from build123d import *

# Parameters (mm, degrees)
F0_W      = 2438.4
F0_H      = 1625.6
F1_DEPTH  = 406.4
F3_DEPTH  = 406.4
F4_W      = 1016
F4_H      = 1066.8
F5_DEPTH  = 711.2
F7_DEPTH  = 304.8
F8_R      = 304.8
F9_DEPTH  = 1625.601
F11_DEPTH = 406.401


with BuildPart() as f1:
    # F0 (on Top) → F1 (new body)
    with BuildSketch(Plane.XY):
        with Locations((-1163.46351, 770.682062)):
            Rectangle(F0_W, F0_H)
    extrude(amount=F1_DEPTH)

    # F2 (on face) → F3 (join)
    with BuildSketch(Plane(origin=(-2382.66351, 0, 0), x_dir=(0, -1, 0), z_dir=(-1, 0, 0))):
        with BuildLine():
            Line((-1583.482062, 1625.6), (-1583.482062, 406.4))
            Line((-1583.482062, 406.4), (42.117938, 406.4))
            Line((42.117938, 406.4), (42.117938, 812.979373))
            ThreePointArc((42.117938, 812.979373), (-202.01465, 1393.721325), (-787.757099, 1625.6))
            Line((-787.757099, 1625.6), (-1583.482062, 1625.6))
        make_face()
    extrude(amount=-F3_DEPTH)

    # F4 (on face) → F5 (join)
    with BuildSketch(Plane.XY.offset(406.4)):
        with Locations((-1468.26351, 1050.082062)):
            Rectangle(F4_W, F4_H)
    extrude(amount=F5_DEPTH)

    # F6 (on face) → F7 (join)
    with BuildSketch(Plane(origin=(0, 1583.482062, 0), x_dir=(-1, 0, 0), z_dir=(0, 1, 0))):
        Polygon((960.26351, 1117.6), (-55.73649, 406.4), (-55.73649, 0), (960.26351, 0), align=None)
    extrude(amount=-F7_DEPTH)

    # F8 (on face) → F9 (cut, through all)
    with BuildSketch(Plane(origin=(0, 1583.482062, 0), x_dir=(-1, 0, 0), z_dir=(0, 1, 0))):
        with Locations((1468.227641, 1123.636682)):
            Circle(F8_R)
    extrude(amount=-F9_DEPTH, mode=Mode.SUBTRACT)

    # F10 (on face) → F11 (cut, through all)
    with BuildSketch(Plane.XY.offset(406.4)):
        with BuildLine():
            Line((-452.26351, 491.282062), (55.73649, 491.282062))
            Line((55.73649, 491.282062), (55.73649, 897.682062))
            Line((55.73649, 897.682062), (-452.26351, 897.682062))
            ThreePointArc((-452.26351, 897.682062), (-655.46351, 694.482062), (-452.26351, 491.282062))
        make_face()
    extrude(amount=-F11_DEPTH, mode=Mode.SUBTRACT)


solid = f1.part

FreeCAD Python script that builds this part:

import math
import FreeCAD as App
import Part
import Sketcher
Q = App.Units.Quantity


def add_polygon(sketch, points):
    """Adds a closed chain of lines whose ends are joined by coincident constraints."""
    first, n = sketch.GeometryCount, len(points)
    for a, b in zip(points, points[1:] + points[:1]):
        sketch.addGeometry(Part.LineSegment(App.Vector(*a, 0), App.Vector(*b, 0)), False)
    for i in range(n):
        sketch.addConstraint(Sketcher.Constraint("Coincident", first + i, 2, first + (i + 1) % n, 1))

doc = App.newDocument("Part")
body = doc.addObject("PartDesign::Body", "Body")

# Sketch on XY plane
sketch1 = doc.addObject("Sketcher::SketchObject", "Sketch")
body.addObject(sketch1)
sketch1.AttachmentSupport = (doc.XY_Plane, [""])
sketch1.MapMode = "FlatFace"
add_polygon(sketch1, [(-2382.66351, 1583.482062), (-2382.66351, -42.117938), (55.73649, -42.117938), (55.73649, 1583.482062)])  # lines 0-3
sketch1.addConstraint(Sketcher.Constraint("Vertical", 0))
sketch1.addConstraint(Sketcher.Constraint("Horizontal", 1))
sketch1.addConstraint(Sketcher.Constraint("Vertical", 2))
sketch1.addConstraint(Sketcher.Constraint("Horizontal", 3))
sketch1.addConstraint(Sketcher.Constraint("DistanceX", 1, 1, 1, 2, Q("96 in")))
sketch1.addConstraint(Sketcher.Constraint("DistanceY", 0, 2, 0, 1, Q("64 in")))
sketch1.addConstraint(Sketcher.Constraint("DistanceX", 0, 2, -1, 1, 2382.66351))
sketch1.addConstraint(Sketcher.Constraint("DistanceY", 0, 2, -1, 1, 42.117938))
pad1 = doc.addObject("PartDesign::Pad", "Pad")
body.addObject(pad1)
pad1.Profile = sketch1
pad1.Length = Q("16 in")

# Sketch on YZ plane
sketch2 = doc.addObject("Sketcher::SketchObject", "Sketch001")
body.addObject(sketch2)
sketch2.AttachmentSupport = (doc.YZ_Plane, [""])
sketch2.MapMode = "FlatFace"
sketch2.AttachmentOffset = App.Placement(App.Vector(0, 0, -2382.66351), App.Rotation())
sketch2.addGeometry(Part.LineSegment(App.Vector(1583.482062, 1625.6, 0), App.Vector(1583.482062, 406.4, 0)), False)
sketch2.addGeometry(Part.LineSegment(App.Vector(1583.482062, 406.4, 0), App.Vector(-42.117938, 406.4, 0)), False)
sketch2.addGeometry(Part.LineSegment(App.Vector(-42.117938, 406.4, 0), App.Vector(-42.117938, 812.979373, 0)), False)
sketch2.addGeometry(Part.ArcOfCircle(Part.Circle(App.Vector(770.682062, 812.979373, 0), App.Vector(0, 0, 1), 812.8), math.radians(88.79626), math.radians(180)), False)
sketch2.addGeometry(Part.LineSegment(App.Vector(787.757099, 1625.6, 0), App.Vector(1583.482062, 1625.6, 0)), False)
sketch2.addConstraint(Sketcher.Constraint("Coincident", 0, 2, 1, 1))
sketch2.addConstraint(Sketcher.Constraint("Coincident", 1, 2, 2, 1))
sketch2.addConstraint(Sketcher.Constraint("Tangent", 2, 2, 3, 2))
sketch2.addConstraint(Sketcher.Constraint("Coincident", 3, 1, 4, 1))
sketch2.addConstraint(Sketcher.Constraint("Coincident", 4, 2, 0, 1))
sketch2.addConstraint(Sketcher.Constraint("Vertical", 0))
sketch2.addConstraint(Sketcher.Constraint("Horizontal", 1))
sketch2.addConstraint(Sketcher.Constraint("Vertical", 2))
sketch2.addConstraint(Sketcher.Constraint("Horizontal", 4))
sketch2.addConstraint(Sketcher.Constraint("Radius", 3, Q("32 in")))
sketch2.addConstraint(Sketcher.Constraint("DistanceX", 1, 2, 1, 1, Q("64 in")))
sketch2.addConstraint(Sketcher.Constraint("DistanceY", 0, 2, 0, 1, Q("48 in")))
sketch2.addConstraint(Sketcher.Constraint("DistanceY", -1, 1, 0, 2, Q("16 in")))
sketch2.addConstraint(Sketcher.Constraint("DistanceX", 4, 1, 4, 2, 795.724963))
sketch2.addConstraint(Sketcher.Constraint("DistanceX", -1, 1, 3, 3, 770.682062))
pad2 = doc.addObject("PartDesign::Pad", "Pad001")
body.addObject(pad2)
pad2.Profile = sketch2
pad2.Length = Q("16 in")

# Sketch on XY plane
sketch3 = doc.addObject("Sketcher::SketchObject", "Sketch002")
body.addObject(sketch3)
sketch3.AttachmentSupport = (doc.XY_Plane, [""])
sketch3.MapMode = "FlatFace"
sketch3.AttachmentOffset = App.Placement(App.Vector(0, 0, 16 * 25.4), App.Rotation())
add_polygon(sketch3, [(-1976.26351, 1583.482062), (-1976.26351, 516.682062), (-960.26351, 516.682062), (-960.26351, 1583.482062)])  # lines 0-3
sketch3.addConstraint(Sketcher.Constraint("Vertical", 0))
sketch3.addConstraint(Sketcher.Constraint("Horizontal", 1))
sketch3.addConstraint(Sketcher.Constraint("Vertical", 2))
sketch3.addConstraint(Sketcher.Constraint("Horizontal", 3))
sketch3.addConstraint(Sketcher.Constraint("DistanceX", 1, 1, 1, 2, Q("40 in")))
sketch3.addConstraint(Sketcher.Constraint("DistanceY", 0, 2, 0, 1, Q("42 in")))
sketch3.addConstraint(Sketcher.Constraint("DistanceX", 0, 2, -1, 1, 1976.26351))
sketch3.addConstraint(Sketcher.Constraint("DistanceY", -1, 1, 0, 2, 516.682062))
pad3 = doc.addObject("PartDesign::Pad", "Pad002")
body.addObject(pad3)
pad3.Profile = sketch3
pad3.Length = Q("28 in")

# Sketch on XZ plane
sketch4 = doc.addObject("Sketcher::SketchObject", "Sketch003")
body.addObject(sketch4)
sketch4.AttachmentSupport = (doc.XZ_Plane, [""])
sketch4.MapMode = "FlatFace"
sketch4.AttachmentOffset = App.Placement(App.Vector(0, 0, -1583.482062), App.Rotation())
add_polygon(sketch4, [(-960.26351, 1117.6), (55.73649, 406.4), (55.73649, 0), (-960.26351, 0)])  # lines 0-3
sketch4.addConstraint(Sketcher.Constraint("Vertical", 1))
sketch4.addConstraint(Sketcher.Constraint("Horizontal", 2))
sketch4.addConstraint(Sketcher.Constraint("Vertical", 3))
sketch4.addConstraint(Sketcher.Constraint("PointOnObject", 1, 2, -1))
sketch4.addConstraint(Sketcher.Constraint("DistanceX", 2, 2, 2, 1, Q("40 in")))
sketch4.addConstraint(Sketcher.Constraint("DistanceY", 1, 2, 1, 1, Q("16 in")))
sketch4.addConstraint(Sketcher.Constraint("DistanceY", 3, 1, 3, 2, Q("44 in")))
sketch4.addConstraint(Sketcher.Constraint("DistanceX", -1, 1, 0, 2, 55.73649))
pad4 = doc.addObject("PartDesign::Pad", "Pad003")
body.addObject(pad4)
pad4.Profile = sketch4
pad4.Length = Q("12 in")

# Sketch on XZ plane
sketch5 = doc.addObject("Sketcher::SketchObject", "Sketch004")
body.addObject(sketch5)
sketch5.AttachmentSupport = (doc.XZ_Plane, [""])
sketch5.MapMode = "FlatFace"
sketch5.AttachmentOffset = App.Placement(App.Vector(0, 0, -1583.482062), App.Rotation())
sketch5.addGeometry(Part.Circle(App.Vector(-1468.227641, 1123.636682, 0), App.Vector(0, 0, 1), 304.8), False)
sketch5.addConstraint(Sketcher.Constraint("Diameter", 0, Q("24 in")))
sketch5.addConstraint(Sketcher.Constraint("DistanceX", 0, 3, -1, 1, 1468.227641))
sketch5.addConstraint(Sketcher.Constraint("DistanceY", -1, 1, 0, 3, 1123.636682))
pocket1 = doc.addObject("PartDesign::Pocket", "Pocket")
body.addObject(pocket1)
pocket1.Profile = sketch5
pocket1.Type = "ThroughAll"
pocket1.Reversed = True

# Sketch on XY plane
sketch6 = doc.addObject("Sketcher::SketchObject", "Sketch005")
body.addObject(sketch6)
sketch6.AttachmentSupport = (doc.XY_Plane, [""])
sketch6.MapMode = "FlatFace"
sketch6.AttachmentOffset = App.Placement(App.Vector(0, 0, 16 * 25.4), App.Rotation())
sketch6.addGeometry(Part.LineSegment(App.Vector(-452.26351, 491.282062, 0), App.Vector(55.73649, 491.282062, 0)), False)
sketch6.addGeometry(Part.LineSegment(App.Vector(55.73649, 491.282062, 0), App.Vector(55.73649, 897.682062, 0)), False)
sketch6.addGeometry(Part.LineSegment(App.Vector(55.73649, 897.682062, 0), App.Vector(-452.26351, 897.682062, 0)), False)
sketch6.addGeometry(Part.ArcOfCircle(Part.Circle(App.Vector(-452.26351, 694.482062, 0), App.Vector(0, 0, 1), 203.2), math.radians(90), math.radians(270)), False)
sketch6.addConstraint(Sketcher.Constraint("Coincident", 0, 2, 1, 1))
sketch6.addConstraint(Sketcher.Constraint("Coincident", 1, 2, 2, 1))
sketch6.addConstraint(Sketcher.Constraint("Tangent", 2, 2, 3, 1))
sketch6.addConstraint(Sketcher.Constraint("Tangent", 3, 2, 0, 1))
sketch6.addConstraint(Sketcher.Constraint("Horizontal", 0))
sketch6.addConstraint(Sketcher.Constraint("Vertical", 1))
sketch6.addConstraint(Sketcher.Constraint("Horizontal", 2))
sketch6.addConstraint(Sketcher.Constraint("Radius", 3, Q("8 in")))
sketch6.addConstraint(Sketcher.Constraint("DistanceX", 0, 1, 0, 2, Q("20 in")))
sketch6.addConstraint(Sketcher.Constraint("DistanceX", 3, 3, -1, 1, 452.26351))
sketch6.addConstraint(Sketcher.Constraint("DistanceY", -1, 1, 3, 3, 694.482062))
pocket2 = doc.addObject("PartDesign::Pocket", "Pocket001")
body.addObject(pocket2)
pocket2.Profile = sketch6
pocket2.Type = "ThroughAll"

doc.recompute()
